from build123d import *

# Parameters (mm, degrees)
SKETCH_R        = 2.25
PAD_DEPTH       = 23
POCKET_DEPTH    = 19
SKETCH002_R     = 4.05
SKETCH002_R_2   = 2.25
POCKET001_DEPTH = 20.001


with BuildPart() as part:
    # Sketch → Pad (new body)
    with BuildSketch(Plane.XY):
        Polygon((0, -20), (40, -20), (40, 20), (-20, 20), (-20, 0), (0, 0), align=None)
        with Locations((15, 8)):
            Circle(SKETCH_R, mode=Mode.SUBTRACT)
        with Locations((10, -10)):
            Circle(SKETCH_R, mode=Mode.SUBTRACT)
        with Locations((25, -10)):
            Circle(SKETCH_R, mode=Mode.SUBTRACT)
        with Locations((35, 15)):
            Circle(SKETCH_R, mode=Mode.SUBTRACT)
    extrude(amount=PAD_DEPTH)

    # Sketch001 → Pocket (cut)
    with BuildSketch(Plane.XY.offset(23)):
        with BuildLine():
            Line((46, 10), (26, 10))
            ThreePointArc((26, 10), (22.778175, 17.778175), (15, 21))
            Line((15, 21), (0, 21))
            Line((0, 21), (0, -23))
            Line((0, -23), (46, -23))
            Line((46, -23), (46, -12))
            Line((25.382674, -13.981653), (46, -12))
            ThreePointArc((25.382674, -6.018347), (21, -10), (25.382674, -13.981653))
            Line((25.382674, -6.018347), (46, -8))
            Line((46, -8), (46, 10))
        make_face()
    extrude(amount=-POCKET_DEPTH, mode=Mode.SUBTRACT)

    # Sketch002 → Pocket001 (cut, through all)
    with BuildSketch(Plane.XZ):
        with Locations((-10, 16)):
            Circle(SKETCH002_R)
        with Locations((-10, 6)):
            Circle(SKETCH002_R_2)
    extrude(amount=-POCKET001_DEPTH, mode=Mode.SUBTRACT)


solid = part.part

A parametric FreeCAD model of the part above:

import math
import FreeCAD as App
import Part
import Sketcher
from FreeCAD import Vector

doc = App.newDocument("Part")
body = doc.addObject("PartDesign::Body", "Body")

# Sketch on XY plane
sketch1 = body.newObject("Sketcher::SketchObject", "Sketch")
sketch1.AttachmentSupport = (doc.getObject("XY_Plane"), [""])
sketch1.MapMode = "FlatFace"
sketch1.addGeometry([
    Part.LineSegment(Vector(0, -20, 0), Vector(40, -20, 0)),  # 0
    Part.LineSegment(Vector(40, -20, 0), Vector(40, 20, 0)),  # 1
    Part.LineSegment(Vector(40, 20, 0), Vector(-20, 20, 0)),  # 2
    Part.LineSegment(Vector(-20, 20, 0), Vector(-20, 0, 0)),  # 3
    Part.LineSegment(Vector(-20, 0, 0), Vector(0, 0, 0)),  # 4
    Part.LineSegment(Vector(0, 0, 0), Vector(0, -20, 0)),  # 5
    Part.Circle(Vector(10, -10, 0), Vector(0, 0, 1), 2.2),  # 6
    Part.Circle(Vector(25, -10, 0), Vector(0, 0, 1), 2.2),  # 7
    Part.Circle(Vector(15, 8, 0), Vector(0, 0, 1), 2.2),  # 8
    Part.Circle(Vector(35, 15, 0), Vector(0, 0, 1), 2.2),  # 9
], False)
sketch1.addConstraint([
    Sketcher.Constraint("Coincident", 0, 2, 1, 1),
    Sketcher.Constraint("Coincident", 1, 2, 2, 1),
    Sketcher.Constraint("Coincident", 2, 2, 3, 1),
    Sketcher.Constraint("Coincident", 3, 2, 4, 1),
    Sketcher.Constraint("Coincident", 4, 2, 5, 1),
    Sketcher.Constraint("Coincident", 5, 2, 0, 1),
    Sketcher.Constraint("Horizontal", 0),
    Sketcher.Constraint("Vertical", 1),
    Sketcher.Constraint("Horizontal", 2),
    Sketcher.Constraint("Vertical", 3),
    Sketcher.Constraint("Horizontal", 4),
    Sketcher.Constraint("Vertical", 5),
    Sketcher.Constraint("Coincident", 4, 2, -1, 1),
    Sketcher.Constraint("Equal", 6, 7),
    Sketcher.Constraint("Equal", 7, 8),
    Sketcher.Constraint("Equal", 8, 9),
    Sketcher.Constraint("Horizontal", 6, 3, 7, 3),
    Sketcher.Constraint("Equal", 0, 1),
    Sketcher.Constraint("Equal", 4, 3),
    Sketcher.Constraint("Equal", 3, 5),
    Sketcher.Constraint("Diameter", 6, 4.5),
    Sketcher.Constraint("DistanceX", 0, 1, 0, 2, 40.0),
    Sketcher.Constraint("DistanceX", -1, 1, 6, 3, 10.0),
    Sketcher.Constraint("DistanceY", 6, 3, -1, 1, 10.0),
    Sketcher.Constraint("DistanceX", -1, 1, 7, 3, 25.0),
    Sketcher.Constraint("DistanceX", -1, 1, 8, 3, 15.0),
    Sketcher.Constraint("DistanceY", -1, 1, 8, 3, 8.0),
    Sketcher.Constraint("DistanceX", -1, 1, 9, 3, 35.0),
    Sketcher.Constraint("DistanceY", -1, 1, 9, 3, 15.0),
])
pad1 = body.newObject("PartDesign::Pad", "Pad")
pad1.Profile = sketch1
pad1.Length = 23

# Sketch on XY plane
sketch2 = body.newObject("Sketcher::SketchObject", "Sketch001")
sketch2.AttachmentSupport = (doc.getObject("XY_Plane"), [""])
sketch2.MapMode = "FlatFace"
sketch2.AttachmentOffset = App.Placement(Vector(0, 0, 23), App.Rotation())
sketch2.addGeometry([
    Part.LineSegment(Vector(46, 10, 0), Vector(26, 10, 0)),  # 0
    Part.ArcOfCircle(Part.Circle(Vector(15, 10, 0), Vector(0, 0, 1), 11), math.radians(0), math.radians(90)),  # 1
    Part.LineSegment(Vector(15, 21, 0), Vector(0, 21, 0)),  # 2
    Part.LineSegment(Vector(0, 21, 0), Vector(0, -23, 0)),  # 3
    Part.LineSegment(Vector(0, -23, 0), Vector(46, -23, 0)),  # 4
    Part.LineSegment(Vector(46, -23, 0), Vector(46, -12, 0)),  # 5
    Part.LineSegment(Vector(46, -12, 0), Vector(25.4, -14, 0)),  # 6
    Part.ArcOfCircle(Part.Circle(Vector(25, -10, 0), Vector(0, 0, 1), 4), math.radians(85), math.radians(275)),  # 7
    Part.LineSegment(Vector(25.4, -6, 0), Vector(46, -8, 0)),  # 8
    Part.LineSegment(Vector(46, -8, 0), Vector(46, 10, 0)),  # 9
], False)
sketch2.addConstraint([
    Sketcher.Constraint("Coincident", 0, 2, 1, 1),
    Sketcher.Constraint("Tangent", 1, 2, 2, 1),
    Sketcher.Constraint("Coincident", 2, 2, 3, 1),
    Sketcher.Constraint("Coincident", 3, 2, 4, 1),
    Sketcher.Constraint("Coincident", 4, 2, 5, 1),
    Sketcher.Constraint("Coincident", 5, 2, 6, 1),
    Sketcher.Constraint("Coincident", 6, 2, 7, 2),
    Sketcher.Constraint("Coincident", 7, 1, 8, 1),
    Sketcher.Constraint("Coincident", 8, 2, 9, 1),
    Sketcher.Constraint("Coincident", 9, 2, 0, 1),
    Sketcher.Constraint("Horizontal", 0),
    Sketcher.Constraint("Horizontal", 2),
    Sketcher.Constraint("Vertical", 3),
    Sketcher.Constraint("Horizontal", 4),
    Sketcher.Constraint("Vertical", 5),
    Sketcher.Constraint("Vertical", 9),
    Sketcher.Constraint("PointOnObject", 2, 2, -2),
    Sketcher.Constraint("Horizontal", 1, 3, 0, 2),
    Sketcher.Constraint("Vertical", 6, 2, 7, 1),
    Sketcher.Constraint("Vertical", 5, 2, 8, 2),
    Sketcher.Constraint("Equal", 6, 8),
    Sketcher.Constraint("Radius", 1, 10.999999),
    Sketcher.Constraint("Radius", 7, 4.0),
    Sketcher.Constraint("DistanceX", 0, 2, 0, 1, 20.0),
    Sketcher.Constraint("DistanceX", 2, 2, 2, 1, 15.0),
    Sketcher.Constraint("DistanceY", 3, 2, 3, 1, 44.0),
    Sketcher.Constraint("DistanceY", 5, 1, 5, 2, 11.0),
    Sketcher.Constraint("DistanceY", 9, 1, 9, 2, 18.0),
    Sketcher.Constraint("DistanceY", -1, 1, 1, 3, 10.000001),
    Sketcher.Constraint("DistanceX", -1, 1, 7, 3, 25.0),
    Sketcher.Constraint("Distance", 6, 20.712341),
])
pocket1 = body.newObject("PartDesign::Pocket", "Pocket")
pocket1.Profile = sketch2
pocket1.Length = 19

# Sketch on XZ plane
sketch3 = body.newObject("Sketcher::SketchObject", "Sketch002")
sketch3.AttachmentSupport = (doc.getObject("XZ_Plane"), [""])
sketch3.MapMode = "FlatFace"
sketch3.addGeometry([
    Part.Circle(Vector(-10, 16, 0), Vector(0, 0, 1), 4),
    Part.Circle(Vector(-10, 6, 0), Vector(0, 0, 1), 2.2),
], False)
sketch3.addConstraint([
    Sketcher.Constraint("Vertical", 0, 3, 1, 3),
    Sketcher.Constraint("Diameter", 0, 8.1),
    Sketcher.Constraint("Diameter", 1, 4.5),
    Sketcher.Constraint("DistanceX", 0, 3, -1, 1, 10.0),
    Sketcher.Constraint("DistanceY", -1, 1, 0, 3, 16.0),
    Sketcher.Constraint("DistanceY", -1, 1, 1, 3, 6.0),
])
pocket2 = body.newObject("PartDesign::Pocket", "Pocket001")
pocket2.Profile = sketch3
pocket2.Type = "ThroughAll"

doc.recompute()
